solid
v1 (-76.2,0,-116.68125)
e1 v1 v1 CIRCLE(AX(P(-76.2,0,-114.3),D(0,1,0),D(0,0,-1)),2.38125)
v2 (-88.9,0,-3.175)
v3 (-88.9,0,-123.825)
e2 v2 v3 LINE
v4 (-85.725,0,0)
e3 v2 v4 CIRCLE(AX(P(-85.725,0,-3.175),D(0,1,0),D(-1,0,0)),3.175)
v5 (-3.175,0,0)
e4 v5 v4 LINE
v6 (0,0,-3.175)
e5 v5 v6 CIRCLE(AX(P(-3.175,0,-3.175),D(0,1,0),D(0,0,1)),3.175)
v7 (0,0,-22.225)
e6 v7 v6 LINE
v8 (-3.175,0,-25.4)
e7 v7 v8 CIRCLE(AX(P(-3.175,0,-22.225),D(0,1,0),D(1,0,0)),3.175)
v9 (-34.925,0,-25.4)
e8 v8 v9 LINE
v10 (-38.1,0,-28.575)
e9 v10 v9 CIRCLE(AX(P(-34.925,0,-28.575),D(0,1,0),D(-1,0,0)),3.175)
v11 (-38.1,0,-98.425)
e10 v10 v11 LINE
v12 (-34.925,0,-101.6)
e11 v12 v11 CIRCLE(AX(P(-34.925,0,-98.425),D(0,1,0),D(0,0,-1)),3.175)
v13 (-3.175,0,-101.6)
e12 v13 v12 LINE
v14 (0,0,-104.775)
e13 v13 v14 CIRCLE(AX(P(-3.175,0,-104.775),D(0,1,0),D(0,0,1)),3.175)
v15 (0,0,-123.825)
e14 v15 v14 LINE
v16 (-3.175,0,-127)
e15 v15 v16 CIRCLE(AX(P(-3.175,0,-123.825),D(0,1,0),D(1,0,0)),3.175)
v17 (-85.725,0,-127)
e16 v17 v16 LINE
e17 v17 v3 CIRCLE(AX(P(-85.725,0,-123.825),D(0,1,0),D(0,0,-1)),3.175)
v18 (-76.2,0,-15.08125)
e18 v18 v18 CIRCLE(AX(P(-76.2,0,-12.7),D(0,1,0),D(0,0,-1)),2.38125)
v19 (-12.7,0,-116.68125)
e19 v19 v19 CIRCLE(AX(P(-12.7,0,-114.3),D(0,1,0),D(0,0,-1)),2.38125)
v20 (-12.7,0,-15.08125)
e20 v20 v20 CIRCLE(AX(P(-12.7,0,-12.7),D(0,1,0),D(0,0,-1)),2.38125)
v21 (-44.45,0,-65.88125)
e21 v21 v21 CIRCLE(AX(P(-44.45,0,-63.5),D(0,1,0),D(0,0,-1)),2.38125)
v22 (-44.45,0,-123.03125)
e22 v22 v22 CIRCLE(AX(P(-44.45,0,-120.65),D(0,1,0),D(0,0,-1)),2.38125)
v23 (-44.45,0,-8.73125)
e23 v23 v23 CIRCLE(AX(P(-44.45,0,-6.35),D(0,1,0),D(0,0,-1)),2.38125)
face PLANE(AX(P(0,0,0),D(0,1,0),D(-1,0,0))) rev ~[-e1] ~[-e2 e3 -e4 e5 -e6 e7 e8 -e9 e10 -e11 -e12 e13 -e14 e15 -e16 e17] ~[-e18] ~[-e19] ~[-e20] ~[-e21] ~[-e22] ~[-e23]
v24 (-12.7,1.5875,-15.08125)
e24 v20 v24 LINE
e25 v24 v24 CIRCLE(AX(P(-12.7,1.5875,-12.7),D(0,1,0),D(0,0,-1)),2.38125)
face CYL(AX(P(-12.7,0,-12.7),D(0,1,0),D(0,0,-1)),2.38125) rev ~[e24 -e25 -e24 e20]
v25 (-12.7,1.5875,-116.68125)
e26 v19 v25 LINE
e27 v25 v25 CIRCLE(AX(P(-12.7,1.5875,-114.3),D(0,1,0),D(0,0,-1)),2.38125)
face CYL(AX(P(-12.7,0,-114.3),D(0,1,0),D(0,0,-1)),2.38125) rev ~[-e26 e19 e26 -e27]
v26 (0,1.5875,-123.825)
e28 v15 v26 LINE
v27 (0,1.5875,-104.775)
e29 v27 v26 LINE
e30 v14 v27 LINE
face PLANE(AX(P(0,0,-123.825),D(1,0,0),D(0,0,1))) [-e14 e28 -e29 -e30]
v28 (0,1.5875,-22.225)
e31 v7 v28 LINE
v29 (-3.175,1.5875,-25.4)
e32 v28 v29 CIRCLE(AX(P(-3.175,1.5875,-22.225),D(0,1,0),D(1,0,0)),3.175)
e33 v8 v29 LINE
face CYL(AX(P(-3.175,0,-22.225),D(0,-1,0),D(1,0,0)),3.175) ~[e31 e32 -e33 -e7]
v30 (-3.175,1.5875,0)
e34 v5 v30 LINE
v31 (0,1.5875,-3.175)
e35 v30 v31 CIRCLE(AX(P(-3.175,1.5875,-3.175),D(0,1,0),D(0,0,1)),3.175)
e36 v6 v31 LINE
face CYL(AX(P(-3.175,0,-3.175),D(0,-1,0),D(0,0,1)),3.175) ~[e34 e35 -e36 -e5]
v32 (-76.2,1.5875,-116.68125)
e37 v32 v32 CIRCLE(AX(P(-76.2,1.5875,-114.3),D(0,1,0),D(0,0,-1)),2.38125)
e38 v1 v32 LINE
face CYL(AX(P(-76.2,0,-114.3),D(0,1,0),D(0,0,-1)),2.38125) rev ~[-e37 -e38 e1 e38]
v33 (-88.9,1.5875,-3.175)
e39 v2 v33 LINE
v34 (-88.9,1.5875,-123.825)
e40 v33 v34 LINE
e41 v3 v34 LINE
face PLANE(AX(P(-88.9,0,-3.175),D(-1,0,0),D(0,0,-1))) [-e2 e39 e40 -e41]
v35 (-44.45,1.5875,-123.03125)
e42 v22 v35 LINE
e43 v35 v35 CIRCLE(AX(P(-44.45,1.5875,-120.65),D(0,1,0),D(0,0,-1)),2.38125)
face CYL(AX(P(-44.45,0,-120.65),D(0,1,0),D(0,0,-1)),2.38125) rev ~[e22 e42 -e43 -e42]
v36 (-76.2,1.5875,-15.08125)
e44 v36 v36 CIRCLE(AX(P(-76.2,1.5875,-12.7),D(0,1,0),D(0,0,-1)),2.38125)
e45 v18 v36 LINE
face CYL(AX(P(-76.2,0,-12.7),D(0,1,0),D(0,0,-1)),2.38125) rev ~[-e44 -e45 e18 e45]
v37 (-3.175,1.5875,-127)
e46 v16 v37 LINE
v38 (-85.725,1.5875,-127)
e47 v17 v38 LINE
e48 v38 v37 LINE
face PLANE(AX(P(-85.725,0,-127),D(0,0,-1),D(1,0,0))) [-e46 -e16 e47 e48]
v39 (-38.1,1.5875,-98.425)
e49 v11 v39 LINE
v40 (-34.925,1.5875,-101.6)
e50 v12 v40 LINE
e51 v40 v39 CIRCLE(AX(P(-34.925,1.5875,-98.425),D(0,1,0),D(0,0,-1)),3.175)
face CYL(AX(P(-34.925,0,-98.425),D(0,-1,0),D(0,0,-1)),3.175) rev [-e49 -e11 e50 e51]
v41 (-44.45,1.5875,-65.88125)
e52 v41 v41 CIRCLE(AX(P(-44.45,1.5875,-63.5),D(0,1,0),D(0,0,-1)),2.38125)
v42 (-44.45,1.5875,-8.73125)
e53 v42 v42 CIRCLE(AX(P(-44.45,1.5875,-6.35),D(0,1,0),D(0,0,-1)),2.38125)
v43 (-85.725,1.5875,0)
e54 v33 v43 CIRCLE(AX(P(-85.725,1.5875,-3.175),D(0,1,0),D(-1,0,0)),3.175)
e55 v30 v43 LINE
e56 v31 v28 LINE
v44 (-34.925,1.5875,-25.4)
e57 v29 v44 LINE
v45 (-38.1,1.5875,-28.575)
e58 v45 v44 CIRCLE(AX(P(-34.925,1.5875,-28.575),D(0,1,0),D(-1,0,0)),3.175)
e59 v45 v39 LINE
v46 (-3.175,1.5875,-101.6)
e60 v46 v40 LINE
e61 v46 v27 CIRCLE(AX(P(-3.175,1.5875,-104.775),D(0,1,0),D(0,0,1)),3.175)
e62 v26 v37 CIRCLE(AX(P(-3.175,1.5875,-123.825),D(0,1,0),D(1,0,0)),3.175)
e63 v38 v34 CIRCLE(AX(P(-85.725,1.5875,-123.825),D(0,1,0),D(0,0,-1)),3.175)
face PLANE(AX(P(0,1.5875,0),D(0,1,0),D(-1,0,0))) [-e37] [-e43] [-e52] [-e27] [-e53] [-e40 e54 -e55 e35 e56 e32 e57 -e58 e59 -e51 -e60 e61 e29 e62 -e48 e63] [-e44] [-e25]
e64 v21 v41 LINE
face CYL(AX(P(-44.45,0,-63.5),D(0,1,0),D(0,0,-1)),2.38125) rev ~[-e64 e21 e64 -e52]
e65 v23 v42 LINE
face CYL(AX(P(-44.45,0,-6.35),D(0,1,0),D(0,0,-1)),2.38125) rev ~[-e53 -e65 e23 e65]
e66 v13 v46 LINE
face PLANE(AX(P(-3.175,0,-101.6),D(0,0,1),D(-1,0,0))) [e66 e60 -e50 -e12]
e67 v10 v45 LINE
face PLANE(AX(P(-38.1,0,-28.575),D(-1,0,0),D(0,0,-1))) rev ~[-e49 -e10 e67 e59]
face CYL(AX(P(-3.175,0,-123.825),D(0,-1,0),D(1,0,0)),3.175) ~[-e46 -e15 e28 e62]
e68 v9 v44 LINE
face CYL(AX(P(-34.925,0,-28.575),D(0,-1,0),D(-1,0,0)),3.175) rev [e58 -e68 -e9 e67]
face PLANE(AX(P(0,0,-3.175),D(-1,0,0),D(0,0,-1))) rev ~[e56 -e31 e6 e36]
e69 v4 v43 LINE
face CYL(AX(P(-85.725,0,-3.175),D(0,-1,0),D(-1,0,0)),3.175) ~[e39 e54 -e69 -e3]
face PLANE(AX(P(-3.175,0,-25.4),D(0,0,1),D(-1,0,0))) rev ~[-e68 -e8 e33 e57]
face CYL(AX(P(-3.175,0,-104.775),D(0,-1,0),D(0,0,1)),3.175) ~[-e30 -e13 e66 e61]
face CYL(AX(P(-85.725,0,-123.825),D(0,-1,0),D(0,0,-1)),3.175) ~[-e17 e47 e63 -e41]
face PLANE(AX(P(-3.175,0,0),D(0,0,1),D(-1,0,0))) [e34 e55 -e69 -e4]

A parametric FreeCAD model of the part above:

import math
import FreeCAD as App
import Part
import Sketcher
Q = App.Units.Quantity

doc = App.newDocument("Part")
body = doc.addObject("PartDesign::Body", "Body")

# Sketch on XZ plane
sketch1 = doc.addObject("Sketcher::SketchObject", "Sketch")
body.addObject(sketch1)
sketch1.AttachmentSupport = (doc.XZ_Plane, [""])
sketch1.MapMode = "FlatFace"
sketch1.addGeometry(Part.LineSegment(App.Vector(-85.725, 0, 0), App.Vector(-3.175, 0, 0)), False)
sketch1.addGeometry(Part.ArcOfCircle(Part.Circle(App.Vector(-3.175, -3.175, 0), App.Vector(0, 0, 1), 3.175), math.radians(0), math.radians(90)), False)
sketch1.addGeometry(Part.LineSegment(App.Vector(0, -3.175, 0), App.Vector(0, -22.225, 0)), False)
sketch1.addGeometry(Part.ArcOfCircle(Part.Circle(App.Vector(-3.175, -22.225, 0), App.Vector(0, 0, 1), 3.175), math.radians(-90), math.radians(0)), False)
sketch1.addGeometry(Part.LineSegment(App.Vector(-3.175, -25.4, 0), App.Vector(-34.925, -25.4, 0)), False)
sketch1.addGeometry(Part.ArcOfCircle(Part.Circle(App.Vector(-34.925, -28.575, 0), App.Vector(0, 0, 1), 3.175), math.radians(90), math.radians(180)), False)
sketch1.addGeometry(Part.LineSegment(App.Vector(-38.1, -28.575, 0), App.Vector(-38.1, -98.425, 0)), False)
sketch1.addGeometry(Part.ArcOfCircle(Part.Circle(App.Vector(-34.925, -98.425, 0), App.Vector(0, 0, 1), 3.175), math.radians(180), math.radians(270)), False)
sketch1.addGeometry(Part.LineSegment(App.Vector(-34.925, -101.6, 0), App.Vector(-3.175, -101.6, 0)), False)
sketch1.addGeometry(Part.ArcOfCircle(Part.Circle(App.Vector(-3.175, -104.775, 0), App.Vector(0, 0, 1), 3.175), math.radians(0), math.radians(90)), False)
sketch1.addGeometry(Part.LineSegment(App.Vector(0, -104.775, 0), App.Vector(0, -123.825, 0)), False)
sketch1.addGeometry(Part.ArcOfCircle(Part.Circle(App.Vector(-3.175, -123.825, 0), App.Vector(0, 0, 1), 3.175), math.radians(-90), math.radians(0)), False)
sketch1.addGeometry(Part.LineSegment(App.Vector(-3.175, -127, 0), App.Vector(-85.725, -127, 0)), False)
sketch1.addGeometry(Part.ArcOfCircle(Part.Circle(App.Vector(-85.725, -123.825, 0), App.Vector(0, 0, 1), 3.175), math.radians(180), math.radians(270)), False)
sketch1.addGeometry(Part.LineSegment(App.Vector(-88.9, -123.825, 0), App.Vector(-88.9, -3.175, 0)), False)
sketch1.addGeometry(Part.ArcOfCircle(Part.Circle(App.Vector(-85.725, -3.175, 0), App.Vector(0, 0, 1), 3.175), math.radians(90), math.radians(180)), False)
sketch1.addConstraint(Sketcher.Constraint("Tangent", 0, 2, 1, 2))
sketch1.addConstraint(Sketcher.Constraint("Tangent", 1, 1, 2, 1))
sketch1.addConstraint(Sketcher.Constraint("Tangent", 2, 2, 3, 2))
sketch1.addConstraint(Sketcher.Constraint("Tangent", 3, 1, 4, 1))
sketch1.addConstraint(Sketcher.Constraint("Tangent", 4, 2, 5, 1))
sketch1.addConstraint(Sketcher.Constraint("Tangent", 5, 2, 6, 1))
sketch1.addConstraint(Sketcher.Constraint("Tangent", 6, 2, 7, 1))
sketch1.addConstraint(Sketcher.Constraint("Tangent", 7, 2, 8, 1))
sketch1.addConstraint(Sketcher.Constraint("Tangent", 8, 2, 9, 2))
sketch1.addConstraint(Sketcher.Constraint("Tangent", 9, 1, 10, 1))
sketch1.addConstraint(Sketcher.Constraint("Tangent", 10, 2, 11, 2))
sketch1.addConstraint(Sketcher.Constraint("Tangent", 11, 1, 12, 1))
sketch1.addConstraint(Sketcher.Constraint("Tangent", 12, 2, 13, 2))
sketch1.addConstraint(Sketcher.Constraint("Tangent", 13, 1, 14, 1))
sketch1.addConstraint(Sketcher.Constraint("Tangent", 14, 2, 15, 2))
sketch1.addConstraint(Sketcher.Constraint("Tangent", 15, 1, 0, 1))
sketch1.addConstraint(Sketcher.Constraint("Horizontal", 0))
sketch1.addConstraint(Sketcher.Constraint("Vertical", 2))
sketch1.addConstraint(Sketcher.Constraint("Horizontal", 4))
sketch1.addConstraint(Sketcher.Constraint("Vertical", 6))
sketch1.addConstraint(Sketcher.Constraint("Horizontal", 8))
sketch1.addConstraint(Sketcher.Constraint("Vertical", 10))
sketch1.addConstraint(Sketcher.Constraint("Horizontal", 12))
sketch1.addConstraint(Sketcher.Constraint("Vertical", 14))
sketch1.addConstraint(Sketcher.Constraint("Equal", 1, 3))
sketch1.addConstraint(Sketcher.Constraint("Equal", 3, 5))
sketch1.addConstraint(Sketcher.Constraint("Equal", 5, 7))
sketch1.addConstraint(Sketcher.Constraint("Equal", 7, 9))
sketch1.addConstraint(Sketcher.Constraint("Equal", 9, 11))
sketch1.addConstraint(Sketcher.Constraint("Equal", 11, 13))
sketch1.addConstraint(Sketcher.Constraint("Equal", 13, 15))
sketch1.addConstraint(Sketcher.Constraint("PointOnObject", 0, 2, -1))
sketch1.addConstraint(Sketcher.Constraint("PointOnObject", 1, 1, -2))
sketch1.addConstraint(Sketcher.Constraint("PointOnObject", 9, 1, -2))
sketch1.addConstraint(Sketcher.Constraint("Equal", 2, 10))
sketch1.addConstraint(Sketcher.Constraint("DistanceY", 3, 1, -1, 1, Q("1 in")))
sketch1.addConstraint(Sketcher.Constraint("DistanceY", 11, 1, -1, 1, Q("5 in")))
sketch1.addConstraint(Sketcher.Constraint("Radius", 1, Q("0.125 in")))
sketch1.addConstraint(Sketcher.Constraint("DistanceX", 4, 2, 4, 1, Q("1.25 in")))
sketch1.addConstraint(Sketcher.Constraint("DistanceX", 13, 1, -1, 1, Q("3.5 in")))
pad1 = doc.addObject("PartDesign::Pad", "Pad")
body.addObject(pad1)
pad1.Profile = sketch1
pad1.Length = Q("0.0625 in")
pad1.Reversed = True

# Sketch on XZ plane
sketch2 = doc.addObject("Sketcher::SketchObject", "Sketch001")
body.addObject(sketch2)
sketch2.AttachmentSupport = (doc.XZ_Plane, [""])
sketch2.MapMode = "FlatFace"
sketch2.addGeometry(Part.Circle(App.Vector(-76.2, -12.7, 0), App.Vector(0, 0, 1), 2.38125), False)
sketch2.addGeometry(Part.Circle(App.Vector(-44.45, -6.35, 0), App.Vector(0, 0, 1), 2.38125), False)
sketch2.addGeometry(Part.Circle(App.Vector(-12.7, -12.7, 0), App.Vector(0, 0, 1), 2.38125), False)
sketch2.addGeometry(Part.Circle(App.Vector(-12.7, -114.3, 0), App.Vector(0, 0, 1), 2.38125), False)
sketch2.addGeometry(Part.Circle(App.Vector(-44.45, -120.65, 0), App.Vector(0, 0, 1), 2.38125), False)
sketch2.addGeometry(Part.Circle(App.Vector(-76.2, -114.3, 0), App.Vector(0, 0, 1), 2.38125), False)
sketch2.addGeometry(Part.Circle(App.Vector(-44.45, -63.5, 0), App.Vector(0, 0, 1), 2.38125), False)
sketch2.addConstraint(Sketcher.Constraint("Equal", 0, 1))
sketch2.addConstraint(Sketcher.Constraint("Equal", 1, 2))
sketch2.addConstraint(Sketcher.Constraint("Equal", 2, 3))
sketch2.addConstraint(Sketcher.Constraint("Equal", 3, 4))
sketch2.addConstraint(Sketcher.Constraint("Equal", 4, 5))
sketch2.addConstraint(Sketcher.Constraint("Equal", 5, 6))
sketch2.addConstraint(Sketcher.Constraint("Horizontal", 0, 3, 2, 3))
sketch2.addConstraint(Sketcher.Constraint("Horizontal", 3, 3, 5, 3))
sketch2.addConstraint(Sketcher.Constraint("Vertical", 2, 3, 3, 3))
sketch2.addConstraint(Sketcher.Constraint("Vertical", 1, 3, 4, 3))
sketch2.addConstraint(Sketcher.Constraint("Vertical", 0, 3, 5, 3))
sketch2.addConstraint(Sketcher.Constraint("Vertical", 4, 3, 6, 3))
sketch2.addConstraint(Sketcher.Constraint("Diameter", 0, Q("0.1875 in")))
sketch2.addConstraint(Sketcher.Constraint("DistanceX", 0, 3, -1, 1, Q("3 in")))
sketch2.addConstraint(Sketcher.Constraint("DistanceY", 3, 3, 2, 3, Q("4 in")))
sketch2.addConstraint(Sketcher.Constraint("DistanceY", 6, 3, 0, 3, Q("2 in")))
sketch2.addConstraint(Sketcher.Constraint("DistanceY", 0, 3, -1, 1, Q("0.5 in")))
sketch2.addConstraint(Sketcher.Constraint("DistanceX", 2, 3, -1, 1, Q("0.5 in")))
sketch2.addConstraint(Sketcher.Constraint("DistanceY", 4, 3, 1, 3, Q("4.5 in")))
sketch2.addConstraint(Sketcher.Constraint("DistanceX", 1, 3, -1, 1, Q("1.75 in")))
sketch2.addConstraint(Sketcher.Constraint("DistanceY", 1, 3, -1, 1, Q("0.25 in")))
doc.recompute()
hole = doc.addObject("PartDesign::Hole", "Hole")
body.addObject(hole)
hole.Profile = sketch2
hole.ThreadType = "None"
hole.Diameter = Q("0.1875 in")
hole.DepthType = "ThroughAll"

doc.recompute()
